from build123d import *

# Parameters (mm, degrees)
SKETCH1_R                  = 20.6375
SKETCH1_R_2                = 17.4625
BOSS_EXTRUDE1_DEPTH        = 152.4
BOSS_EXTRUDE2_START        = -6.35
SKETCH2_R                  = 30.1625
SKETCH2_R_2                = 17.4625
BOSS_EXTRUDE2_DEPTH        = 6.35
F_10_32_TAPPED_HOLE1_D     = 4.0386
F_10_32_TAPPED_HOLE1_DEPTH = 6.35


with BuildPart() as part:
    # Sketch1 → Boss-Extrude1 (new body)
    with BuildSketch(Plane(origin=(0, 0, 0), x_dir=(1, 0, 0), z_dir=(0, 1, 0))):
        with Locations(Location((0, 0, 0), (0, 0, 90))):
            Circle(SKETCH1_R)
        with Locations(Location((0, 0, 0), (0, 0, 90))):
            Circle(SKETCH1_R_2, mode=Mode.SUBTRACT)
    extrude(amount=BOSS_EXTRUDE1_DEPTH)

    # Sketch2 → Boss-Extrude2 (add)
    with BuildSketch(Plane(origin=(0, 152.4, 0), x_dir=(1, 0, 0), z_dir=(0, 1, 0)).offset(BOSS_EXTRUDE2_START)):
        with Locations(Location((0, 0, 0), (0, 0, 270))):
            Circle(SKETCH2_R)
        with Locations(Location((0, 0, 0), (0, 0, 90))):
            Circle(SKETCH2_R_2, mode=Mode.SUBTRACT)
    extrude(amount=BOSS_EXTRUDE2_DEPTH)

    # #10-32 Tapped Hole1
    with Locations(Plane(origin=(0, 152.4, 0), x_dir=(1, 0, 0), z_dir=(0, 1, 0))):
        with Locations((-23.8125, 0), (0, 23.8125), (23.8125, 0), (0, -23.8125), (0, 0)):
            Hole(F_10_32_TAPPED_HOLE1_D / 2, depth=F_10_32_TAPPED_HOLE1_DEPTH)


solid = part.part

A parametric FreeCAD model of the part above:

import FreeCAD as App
import Part
import Sketcher
from FreeCAD import Vector
Q = App.Units.Quantity

doc = App.newDocument("Part")
body = doc.addObject("PartDesign::Body", "Body")

# Sketch on XZ plane
sketch1 = doc.addObject("Sketcher::SketchObject", "Sketch")
body.addObject(sketch1)
sketch1.AttachmentSupport = (doc.XZ_Plane, [""])
sketch1.MapMode = "FlatFace"
sketch1.addGeometry([
    Part.Circle(Vector(0, 0, 0), Vector(0, 0, 1), 21),
    Part.Circle(Vector(0, 0, 0), Vector(0, 0, 1), 17),
], False)
sketch1.addConstraint([
    Sketcher.Constraint("Coincident", 0, 3, -1, 1),
    Sketcher.Constraint("Coincident", 1, 3, -1, 1),
    Sketcher.Constraint("Diameter", 0, Q("1.625 in")),
    Sketcher.Constraint("Diameter", 1, Q("1.375 in")),
])
pad1 = doc.addObject("PartDesign::Pad", "Pad")
body.addObject(pad1)
pad1.Profile = sketch1
pad1.Length = Q("6 in")
pad1.Reversed = True

# Sketch on XZ plane
sketch2 = doc.addObject("Sketcher::SketchObject", "Sketch001")
body.addObject(sketch2)
sketch2.AttachmentSupport = (doc.XZ_Plane, [""])
sketch2.MapMode = "FlatFace"
sketch2.AttachmentOffset = App.Placement(Vector(0, 0, -5.75 * 25.4), App.Rotation())
sketch2.addGeometry([
    Part.Circle(Vector(0, 0, 0), Vector(0, 0, 1), 30),
    Part.Circle(Vector(0, 0, 0), Vector(0, 0, 1), 17),
], False)
sketch2.addConstraint([
    Sketcher.Constraint("Coincident", 0, 3, -1, 1),
    Sketcher.Constraint("Coincident", 1, 3, -1, 1),
    Sketcher.Constraint("Diameter", 0, Q("2.375 in")),
    Sketcher.Constraint("Diameter", 1, Q("1.375 in")),
])
pad2 = doc.addObject("PartDesign::Pad", "Pad001")
body.addObject(pad2)
pad2.Profile = sketch2
pad2.Length = Q("0.25 in")
pad2.Reversed = True

# Sketch on XZ plane
sketch3 = doc.addObject("Sketcher::SketchObject", "Sketch002")
body.addObject(sketch3)
sketch3.AttachmentSupport = (doc.XZ_Plane, [""])
sketch3.MapMode = "FlatFace"
sketch3.AttachmentOffset = App.Placement(Vector(0, 0, -6 * 25.4), App.Rotation())
sketch3.addGeometry([
    Part.Circle(Vector(-23.8, 0, 0), Vector(0, 0, 1), 2),  # 0
    Part.Circle(Vector(0, -23.8, 0), Vector(0, 0, 1), 2),  # 1
    Part.Circle(Vector(23.8, 0, 0), Vector(0, 0, 1), 2),  # 2
    Part.Circle(Vector(0, 23.8, 0), Vector(0, 0, 1), 2),  # 3
    Part.Circle(Vector(0, 0, 0), Vector(0, 0, 1), 2),  # 4
], False)
sketch3.addConstraint([
    Sketcher.Constraint("Coincident", 4, 3, -1, 1),
    Sketcher.Constraint("Equal", 0, 1),
    Sketcher.Constraint("Equal", 1, 2),
    Sketcher.Constraint("Equal", 2, 3),
    Sketcher.Constraint("Equal", 3, 4),
    Sketcher.Constraint("Symmetric", 0, 3, 2, 3, -1, 1),
    Sketcher.Constraint("Symmetric", 1, 3, 3, 3, -1, 1),
    Sketcher.Constraint("PointOnObject", 0, 3, -1),
    Sketcher.Constraint("PointOnObject", 1, 3, -2),
    Sketcher.Constraint("Diameter", 0, Q("0.159 in")),
    Sketcher.Constraint("DistanceX", 0, 3, -1, 1, Q("0.9375 in")),
    Sketcher.Constraint("DistanceY", 1, 3, -1, 1, Q("0.9375 in")),
])
doc.recompute()
hole = doc.addObject("PartDesign::Hole", "Hole")
body.addObject(hole)
hole.Profile = sketch3
hole.ThreadType = "None"
hole.Diameter = Q("0.159 in")
hole.DepthType = "Dimension"
hole.Depth = Q("0.25 in")
hole.DrillPoint = "Flat"
hole.Reversed = True

doc.recompute()
